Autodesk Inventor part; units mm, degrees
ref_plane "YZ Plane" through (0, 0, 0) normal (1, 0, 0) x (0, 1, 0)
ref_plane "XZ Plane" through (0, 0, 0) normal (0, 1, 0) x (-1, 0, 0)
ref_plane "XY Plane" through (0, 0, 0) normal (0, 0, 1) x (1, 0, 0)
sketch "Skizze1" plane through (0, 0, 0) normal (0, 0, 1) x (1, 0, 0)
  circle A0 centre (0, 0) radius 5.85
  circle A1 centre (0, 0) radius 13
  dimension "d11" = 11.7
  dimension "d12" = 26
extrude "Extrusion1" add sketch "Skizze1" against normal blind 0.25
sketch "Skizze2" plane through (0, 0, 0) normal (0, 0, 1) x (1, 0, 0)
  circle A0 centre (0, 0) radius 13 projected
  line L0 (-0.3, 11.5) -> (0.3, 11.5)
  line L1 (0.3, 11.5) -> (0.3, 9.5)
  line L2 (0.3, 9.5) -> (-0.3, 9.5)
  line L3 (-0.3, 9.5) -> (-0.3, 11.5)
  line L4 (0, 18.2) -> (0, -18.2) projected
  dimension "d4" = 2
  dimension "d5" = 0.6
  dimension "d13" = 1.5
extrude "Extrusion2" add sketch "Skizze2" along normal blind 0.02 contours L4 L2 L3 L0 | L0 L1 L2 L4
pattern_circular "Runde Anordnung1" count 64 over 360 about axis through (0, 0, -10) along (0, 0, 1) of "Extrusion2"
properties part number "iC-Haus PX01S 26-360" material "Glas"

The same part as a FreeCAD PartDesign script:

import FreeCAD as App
import Part
import Sketcher
from FreeCAD import Vector
Q = App.Units.Quantity


def add_polygon(sketch, points):
    """Adds a closed chain of lines whose ends are joined by coincident constraints."""
    first, n = sketch.GeometryCount, len(points)
    for a, b in zip(points, points[1:] + points[:1]):
        sketch.addGeometry(Part.LineSegment(App.Vector(*a, 0), App.Vector(*b, 0)), False)
    for i in range(n):
        sketch.addConstraint(Sketcher.Constraint("Coincident", first + i, 2, first + (i + 1) % n, 1))

doc = App.newDocument("Part")
body = doc.addObject("PartDesign::Body", "Body")

# Sketch on XY plane
sketch1 = doc.addObject("Sketcher::SketchObject", "Sketch")
body.addObject(sketch1)
sketch1.AttachmentSupport = (doc.XY_Plane, [""])
sketch1.MapMode = "FlatFace"
sketch1.addGeometry(Part.Circle(Vector(0, 0, 0), Vector(0, 0, 1), 13), False)
sketch1.addGeometry(Part.Circle(Vector(0, 0, 0), Vector(0, 0, 1), 5.85), False)
sketch1.addConstraint(Sketcher.Constraint("Coincident", 0, 3, -1, 1))
sketch1.addConstraint(Sketcher.Constraint("Coincident", 1, 3, -1, 1))
sketch1.addConstraint(Sketcher.Constraint("Diameter", 0, Q("26 mm")))
sketch1.addConstraint(Sketcher.Constraint("Diameter", 1, Q("11.7 mm")))
pad1 = doc.addObject("PartDesign::Pad", "Pad")
body.addObject(pad1)
pad1.Profile = sketch1
pad1.Length = 0.25
pad1.Reversed = True

# Sketch on XY plane
sketch2 = doc.addObject("Sketcher::SketchObject", "Sketch001")
body.addObject(sketch2)
sketch2.AttachmentSupport = (doc.XY_Plane, [""])
sketch2.MapMode = "FlatFace"
add_polygon(sketch2, [(-0.3, 9.5), (0.3, 9.5), (0.3, 11.5), (-0.3, 11.5)])  # lines 0-3
sketch2.addConstraint(Sketcher.Constraint("Horizontal", 0))
sketch2.addConstraint(Sketcher.Constraint("Vertical", 1))
sketch2.addConstraint(Sketcher.Constraint("Horizontal", 2))
sketch2.addConstraint(Sketcher.Constraint("Vertical", 3))
sketch2.addConstraint(Sketcher.Constraint("DistanceY", 1, 1, 1, 2, Q("2 mm")))
sketch2.addConstraint(Sketcher.Constraint("DistanceX", 0, 1, 0, 2, Q("0.6 mm")))
sketch2.addConstraint(Sketcher.Constraint("DistanceX", -1, 1, 0, 2, Q("0.3 mm")))
sketch2.addConstraint(Sketcher.Constraint("DistanceY", -1, 1, 0, 2, Q("9.5 mm")))
pad2 = doc.addObject("PartDesign::Pad", "Pad001")
body.addObject(pad2)
pad2.Profile = sketch2
pad2.Length = 0.02
doc.recompute()

polarpattern = doc.addObject("PartDesign::PolarPattern", "PolarPattern")
body.addObject(polarpattern)
polarpattern.Originals = [pad2]
polarpattern.Axis = (doc.Z_Axis, [""])
polarpattern.Angle = 360
polarpattern.Occurrences = 64
body.Tip = polarpattern

doc.recompute()
